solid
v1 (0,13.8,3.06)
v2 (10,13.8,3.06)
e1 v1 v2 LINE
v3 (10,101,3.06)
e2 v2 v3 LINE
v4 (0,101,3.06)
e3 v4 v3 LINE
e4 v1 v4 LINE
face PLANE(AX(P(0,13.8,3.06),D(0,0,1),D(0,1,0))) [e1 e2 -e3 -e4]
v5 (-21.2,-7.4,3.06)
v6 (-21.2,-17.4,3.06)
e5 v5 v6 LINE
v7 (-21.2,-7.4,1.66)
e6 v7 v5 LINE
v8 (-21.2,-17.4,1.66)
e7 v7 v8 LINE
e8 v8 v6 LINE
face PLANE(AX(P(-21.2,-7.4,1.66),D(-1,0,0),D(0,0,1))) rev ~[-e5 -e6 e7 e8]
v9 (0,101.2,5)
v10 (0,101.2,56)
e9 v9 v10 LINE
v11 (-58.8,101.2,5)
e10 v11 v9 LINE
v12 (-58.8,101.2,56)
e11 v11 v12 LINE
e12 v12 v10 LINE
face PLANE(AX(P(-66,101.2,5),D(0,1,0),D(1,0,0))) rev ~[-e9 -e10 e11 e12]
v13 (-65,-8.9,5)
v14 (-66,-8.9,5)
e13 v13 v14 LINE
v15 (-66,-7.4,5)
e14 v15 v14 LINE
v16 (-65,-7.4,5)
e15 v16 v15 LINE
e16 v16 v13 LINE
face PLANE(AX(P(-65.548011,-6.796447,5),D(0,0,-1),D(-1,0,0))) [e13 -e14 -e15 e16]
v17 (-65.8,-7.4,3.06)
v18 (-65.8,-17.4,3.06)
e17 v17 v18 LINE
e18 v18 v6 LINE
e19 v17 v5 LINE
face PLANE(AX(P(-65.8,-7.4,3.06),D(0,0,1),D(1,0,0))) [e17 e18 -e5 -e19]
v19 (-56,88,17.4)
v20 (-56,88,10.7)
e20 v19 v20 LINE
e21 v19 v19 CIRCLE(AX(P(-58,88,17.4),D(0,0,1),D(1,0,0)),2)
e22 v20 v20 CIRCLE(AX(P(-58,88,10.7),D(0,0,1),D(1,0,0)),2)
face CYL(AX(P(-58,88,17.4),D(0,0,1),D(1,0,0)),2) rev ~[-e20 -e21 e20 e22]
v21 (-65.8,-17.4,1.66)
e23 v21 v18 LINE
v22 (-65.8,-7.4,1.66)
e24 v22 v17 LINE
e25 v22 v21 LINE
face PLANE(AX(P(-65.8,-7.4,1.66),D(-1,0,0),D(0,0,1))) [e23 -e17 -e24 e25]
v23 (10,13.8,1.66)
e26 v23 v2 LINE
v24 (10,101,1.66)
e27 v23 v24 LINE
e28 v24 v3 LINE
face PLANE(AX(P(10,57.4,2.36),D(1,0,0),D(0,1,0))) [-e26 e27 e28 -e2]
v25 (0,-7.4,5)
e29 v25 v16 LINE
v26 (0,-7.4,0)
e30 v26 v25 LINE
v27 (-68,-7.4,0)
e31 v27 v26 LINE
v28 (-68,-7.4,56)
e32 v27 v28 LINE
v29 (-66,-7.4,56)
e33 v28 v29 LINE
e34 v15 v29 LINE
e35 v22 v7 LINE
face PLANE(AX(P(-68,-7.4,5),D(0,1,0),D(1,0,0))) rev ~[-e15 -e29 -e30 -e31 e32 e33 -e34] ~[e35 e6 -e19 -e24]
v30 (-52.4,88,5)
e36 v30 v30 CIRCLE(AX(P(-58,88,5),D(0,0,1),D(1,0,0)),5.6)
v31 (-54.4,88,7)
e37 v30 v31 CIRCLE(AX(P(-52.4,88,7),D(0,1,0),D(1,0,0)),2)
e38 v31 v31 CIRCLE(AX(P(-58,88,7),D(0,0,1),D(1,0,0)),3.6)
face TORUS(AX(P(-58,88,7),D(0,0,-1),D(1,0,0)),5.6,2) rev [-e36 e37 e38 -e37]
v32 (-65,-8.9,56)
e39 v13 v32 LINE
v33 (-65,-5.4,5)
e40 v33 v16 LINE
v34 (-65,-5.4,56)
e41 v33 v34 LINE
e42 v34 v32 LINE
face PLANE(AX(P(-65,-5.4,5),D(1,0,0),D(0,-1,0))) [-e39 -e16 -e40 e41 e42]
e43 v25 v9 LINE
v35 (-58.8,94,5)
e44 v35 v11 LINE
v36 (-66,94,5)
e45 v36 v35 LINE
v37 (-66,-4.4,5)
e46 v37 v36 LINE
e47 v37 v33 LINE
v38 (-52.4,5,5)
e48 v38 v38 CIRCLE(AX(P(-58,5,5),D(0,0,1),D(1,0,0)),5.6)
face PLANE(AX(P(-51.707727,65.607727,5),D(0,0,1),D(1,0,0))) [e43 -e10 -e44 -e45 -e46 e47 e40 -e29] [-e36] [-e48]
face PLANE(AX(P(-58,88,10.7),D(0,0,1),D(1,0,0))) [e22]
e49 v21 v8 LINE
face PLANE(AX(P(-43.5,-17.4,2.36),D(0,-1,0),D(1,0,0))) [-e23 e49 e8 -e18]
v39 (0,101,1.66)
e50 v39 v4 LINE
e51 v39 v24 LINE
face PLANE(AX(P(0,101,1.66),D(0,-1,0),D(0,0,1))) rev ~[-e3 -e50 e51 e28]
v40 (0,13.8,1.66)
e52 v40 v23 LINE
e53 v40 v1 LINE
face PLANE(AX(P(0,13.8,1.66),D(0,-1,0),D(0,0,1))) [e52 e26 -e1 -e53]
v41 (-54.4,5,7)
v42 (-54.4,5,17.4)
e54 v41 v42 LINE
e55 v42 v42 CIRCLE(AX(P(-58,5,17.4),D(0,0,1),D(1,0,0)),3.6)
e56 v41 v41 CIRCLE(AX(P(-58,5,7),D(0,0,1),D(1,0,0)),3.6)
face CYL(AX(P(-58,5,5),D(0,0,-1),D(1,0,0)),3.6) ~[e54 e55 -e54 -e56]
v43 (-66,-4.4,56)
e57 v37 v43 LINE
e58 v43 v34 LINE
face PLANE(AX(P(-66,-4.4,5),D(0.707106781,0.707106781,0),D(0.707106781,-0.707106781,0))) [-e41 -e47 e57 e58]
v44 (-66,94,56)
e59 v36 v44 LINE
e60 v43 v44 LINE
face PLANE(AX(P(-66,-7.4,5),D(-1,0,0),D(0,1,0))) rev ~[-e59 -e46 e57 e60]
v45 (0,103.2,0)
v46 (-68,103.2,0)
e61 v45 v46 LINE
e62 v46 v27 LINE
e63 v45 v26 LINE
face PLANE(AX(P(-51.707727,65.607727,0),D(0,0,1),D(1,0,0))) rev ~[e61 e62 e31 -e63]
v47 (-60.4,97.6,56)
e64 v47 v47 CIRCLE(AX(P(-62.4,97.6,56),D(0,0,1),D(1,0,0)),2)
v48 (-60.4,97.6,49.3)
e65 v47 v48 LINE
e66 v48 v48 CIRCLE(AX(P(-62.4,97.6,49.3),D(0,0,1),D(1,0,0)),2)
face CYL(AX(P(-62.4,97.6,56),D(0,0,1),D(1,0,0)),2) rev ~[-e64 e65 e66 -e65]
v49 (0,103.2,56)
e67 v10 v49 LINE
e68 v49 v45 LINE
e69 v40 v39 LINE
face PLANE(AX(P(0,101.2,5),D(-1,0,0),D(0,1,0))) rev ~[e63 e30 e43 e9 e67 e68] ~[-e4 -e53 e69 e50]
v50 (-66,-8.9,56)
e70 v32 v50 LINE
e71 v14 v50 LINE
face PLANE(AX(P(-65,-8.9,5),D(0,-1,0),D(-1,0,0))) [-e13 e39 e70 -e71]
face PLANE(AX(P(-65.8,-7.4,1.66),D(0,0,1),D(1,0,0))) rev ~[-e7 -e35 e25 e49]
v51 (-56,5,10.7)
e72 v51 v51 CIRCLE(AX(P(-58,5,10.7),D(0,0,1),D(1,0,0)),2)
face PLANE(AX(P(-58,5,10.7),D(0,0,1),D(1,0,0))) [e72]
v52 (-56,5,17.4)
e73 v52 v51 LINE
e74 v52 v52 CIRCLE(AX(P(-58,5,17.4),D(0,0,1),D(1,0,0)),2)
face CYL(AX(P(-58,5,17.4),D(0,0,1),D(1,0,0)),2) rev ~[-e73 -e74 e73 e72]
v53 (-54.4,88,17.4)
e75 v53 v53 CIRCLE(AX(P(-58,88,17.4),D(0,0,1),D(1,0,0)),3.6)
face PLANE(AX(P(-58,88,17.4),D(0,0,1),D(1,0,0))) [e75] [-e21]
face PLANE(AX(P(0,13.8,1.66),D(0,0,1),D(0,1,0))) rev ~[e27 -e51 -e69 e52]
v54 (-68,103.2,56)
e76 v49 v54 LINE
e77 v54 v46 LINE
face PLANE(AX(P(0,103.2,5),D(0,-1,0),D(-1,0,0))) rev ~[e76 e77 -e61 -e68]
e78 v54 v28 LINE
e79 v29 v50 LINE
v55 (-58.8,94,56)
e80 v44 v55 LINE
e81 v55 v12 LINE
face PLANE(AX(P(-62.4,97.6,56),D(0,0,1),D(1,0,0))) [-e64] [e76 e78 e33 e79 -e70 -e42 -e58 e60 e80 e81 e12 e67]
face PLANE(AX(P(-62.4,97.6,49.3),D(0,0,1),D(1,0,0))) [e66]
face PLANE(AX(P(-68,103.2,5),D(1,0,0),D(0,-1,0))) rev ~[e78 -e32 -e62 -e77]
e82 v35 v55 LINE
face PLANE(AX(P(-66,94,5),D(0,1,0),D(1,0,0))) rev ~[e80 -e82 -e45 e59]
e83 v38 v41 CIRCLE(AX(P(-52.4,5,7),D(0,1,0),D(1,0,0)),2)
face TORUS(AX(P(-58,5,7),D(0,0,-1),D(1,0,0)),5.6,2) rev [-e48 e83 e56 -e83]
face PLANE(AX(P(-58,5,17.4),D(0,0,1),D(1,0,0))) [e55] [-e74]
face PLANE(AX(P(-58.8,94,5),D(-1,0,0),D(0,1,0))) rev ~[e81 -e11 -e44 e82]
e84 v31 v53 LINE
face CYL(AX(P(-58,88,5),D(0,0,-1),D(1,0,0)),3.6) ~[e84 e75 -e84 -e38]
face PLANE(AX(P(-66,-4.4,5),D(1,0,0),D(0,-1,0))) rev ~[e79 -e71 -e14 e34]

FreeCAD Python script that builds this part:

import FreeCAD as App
import Part
import Sketcher

V = App.Vector
Q = App.Units.Quantity


def edges_at(feature, points):
    """Names of the edges that pass closest to the given points."""
    edges = feature.Shape.Edges
    near = lambda p: min(range(len(edges)), key=lambda i: edges[i].distToShape(Part.Vertex(*p))[0])
    return sorted({f"Edge{near(p) + 1}" for p in points})


def add_polygon(sketch, points):
    """Adds a closed chain of lines whose ends are joined by coincident constraints."""
    first, n = sketch.GeometryCount, len(points)
    for a, b in zip(points, points[1:] + points[:1]):
        sketch.addGeometry(Part.LineSegment(App.Vector(*a, 0), App.Vector(*b, 0)), False)
    for i in range(n):
        sketch.addConstraint(Sketcher.Constraint("Coincident", first + i, 2, first + (i + 1) % n, 1))

doc = App.newDocument("Part")
body = doc.addObject("PartDesign::Body", "Body")

# Sketch on XY plane
sketch1 = doc.addObject("Sketcher::SketchObject", "Sketch")
body.addObject(sketch1)
sketch1.AttachmentSupport = (doc.XY_Plane, [""])
sketch1.MapMode = "FlatFace"
add_polygon(sketch1, [(-63, 93), (-63, 0), (0, 0), (0, 93)])  # lines 0-3
sketch1.addConstraint(Sketcher.Constraint("Vertical", 0))
sketch1.addConstraint(Sketcher.Constraint("Horizontal", 1))
sketch1.addConstraint(Sketcher.Constraint("Vertical", 2))
sketch1.addConstraint(Sketcher.Constraint("Horizontal", 3))
sketch1.addConstraint(Sketcher.Constraint("Coincident", 1, 2, -1, 1))
sketch1.addConstraint(Sketcher.Constraint("DistanceX", 1, 1, 1, 2, Q("63 mm")))
sketch1.addConstraint(Sketcher.Constraint("DistanceY", 0, 2, 0, 1, Q("93 mm")))
pad1 = doc.addObject("PartDesign::Pad", "Pad")
body.addObject(pad1)
pad1.Profile = sketch1
pad1.Length = 5

# Sketch on XY plane
sketch2 = doc.addObject("Sketcher::SketchObject", "Sketch001")
body.addObject(sketch2)
sketch2.AttachmentSupport = (doc.XY_Plane, [""])
sketch2.MapMode = "FlatFace"
add_polygon(sketch2, [(-63, 0), (-63, -7), (0, -7), (0, 0)])  # lines 0-3
sketch2.addConstraint(Sketcher.Constraint("Vertical", 0))
sketch2.addConstraint(Sketcher.Constraint("Horizontal", 1))
sketch2.addConstraint(Sketcher.Constraint("Vertical", 2))
sketch2.addConstraint(Sketcher.Constraint("Horizontal", 3))
sketch2.addConstraint(Sketcher.Constraint("Coincident", 2, 2, -1, 1))
sketch2.addConstraint(Sketcher.Constraint("DistanceX", 1, 1, 1, 2, Q("63 mm")))
sketch2.addConstraint(Sketcher.Constraint("DistanceY", 0, 2, 0, 1, Q("7.4 mm")))
pad2 = doc.addObject("PartDesign::Pad", "Pad001")
body.addObject(pad2)
pad2.Profile = sketch2
pad2.Length = 5

# Sketch on XY plane
sketch3 = doc.addObject("Sketcher::SketchObject", "Sketch002")
body.addObject(sketch3)
sketch3.AttachmentSupport = (doc.XY_Plane, [""])
sketch3.MapMode = "FlatFace"
add_polygon(sketch3, [(-68, 103), (-68, -7), (-63, -7), (-63, 93), (0, 93), (0, 103)])  # lines 0-5
sketch3.addConstraint(Sketcher.Constraint("Vertical", 0))
sketch3.addConstraint(Sketcher.Constraint("Horizontal", 1))
sketch3.addConstraint(Sketcher.Constraint("Vertical", 2))
sketch3.addConstraint(Sketcher.Constraint("Horizontal", 3))
sketch3.addConstraint(Sketcher.Constraint("Vertical", 4))
sketch3.addConstraint(Sketcher.Constraint("Horizontal", 5))
sketch3.addConstraint(Sketcher.Constraint("PointOnObject", 3, 2, -2))
sketch3.addConstraint(Sketcher.Constraint("DistanceX", 1, 1, 1, 2, Q("5 mm")))
sketch3.addConstraint(Sketcher.Constraint("DistanceX", 3, 1, 3, 2, Q("63 mm")))
sketch3.addConstraint(Sketcher.Constraint("DistanceY", 0, 2, 0, 1, Q("110.6 mm")))
sketch3.addConstraint(Sketcher.Constraint("DistanceY", 2, 1, 2, 2, Q("100.4 mm")))
sketch3.addConstraint(Sketcher.Constraint("DistanceY", -1, 1, 2, 2, Q("93 mm")))
pad3 = doc.addObject("PartDesign::Pad", "Pad002")
body.addObject(pad3)
pad3.Profile = sketch3
pad3.Length = 5

# Sketch on XY plane
sketch4 = doc.addObject("Sketcher::SketchObject", "Sketch003")
body.addObject(sketch4)
sketch4.AttachmentSupport = (doc.XY_Plane, [""])
sketch4.MapMode = "FlatFace"
sketch4.AttachmentOffset = App.Placement(V(0, 0, 5), App.Rotation())
add_polygon(sketch4, [(-68, 103.2), (-68, -7.4), (-66, -7.4), (-66, 101.2), (0, 101.2), (0, 103.2)])  # lines 0-5
sketch4.addConstraint(Sketcher.Constraint("Vertical", 0))
sketch4.addConstraint(Sketcher.Constraint("Horizontal", 1))
sketch4.addConstraint(Sketcher.Constraint("Vertical", 2))
sketch4.addConstraint(Sketcher.Constraint("Horizontal", 3))
sketch4.addConstraint(Sketcher.Constraint("Vertical", 4))
sketch4.addConstraint(Sketcher.Constraint("Horizontal", 5))
sketch4.addConstraint(Sketcher.Constraint("PointOnObject", 3, 2, -2))
sketch4.addConstraint(Sketcher.Constraint("Equal", 1, 4))
sketch4.addConstraint(Sketcher.Constraint("DistanceX", 1, 1, 1, 2, Q("2 mm")))
sketch4.addConstraint(Sketcher.Constraint("DistanceX", 3, 1, 3, 2, Q("66 mm")))
sketch4.addConstraint(Sketcher.Constraint("DistanceY", 0, 2, 0, 1, Q("110.6 mm")))
sketch4.addConstraint(Sketcher.Constraint("DistanceY", 0, 2, -1, 1, Q("7.4 mm")))
pad4 = doc.addObject("PartDesign::Pad", "Pad003")
body.addObject(pad4)
pad4.Profile = sketch4
pad4.Length = 51

# Sketch on YZ plane
sketch5 = doc.addObject("Sketcher::SketchObject", "Sketch004")
body.addObject(sketch5)
sketch5.AttachmentSupport = (doc.YZ_Plane, [""])
sketch5.MapMode = "FlatFace"
add_polygon(sketch5, [(13.8, 3.1), (13.8, 1.7), (101, 1.7), (101, 3.1)])  # lines 0-3
sketch5.addConstraint(Sketcher.Constraint("Vertical", 0))
sketch5.addConstraint(Sketcher.Constraint("Horizontal", 1))
sketch5.addConstraint(Sketcher.Constraint("Vertical", 2))
sketch5.addConstraint(Sketcher.Constraint("Horizontal", 3))
sketch5.addConstraint(Sketcher.Constraint("DistanceX", 1, 1, 1, 2, Q("87.2 mm")))
sketch5.addConstraint(Sketcher.Constraint("DistanceY", 0, 2, 0, 1, Q("1.4 mm")))
sketch5.addConstraint(Sketcher.Constraint("DistanceX", -1, 1, 1, 2, Q("101 mm")))
sketch5.addConstraint(Sketcher.Constraint("DistanceY", -1, 1, 0, 2, Q("1.66 mm")))
pad5 = doc.addObject("PartDesign::Pad", "Pad004")
body.addObject(pad5)
pad5.Profile = sketch5
pad5.Length = 10

# Sketch on XY plane
sketch6 = doc.addObject("Sketcher::SketchObject", "Sketch005")
body.addObject(sketch6)
sketch6.AttachmentSupport = (doc.XY_Plane, [""])
sketch6.MapMode = "FlatFace"
sketch6.AttachmentOffset = App.Placement(V(0, 0, 5), App.Rotation())
sketch6.addGeometry(Part.Circle(V(-58, 5, 0), V(0, 0, 1), 3.6), False)
sketch6.addGeometry(Part.Circle(V(-58, 88, 0), V(0, 0, 1), 3.6), False)
sketch6.addConstraint(Sketcher.Constraint("Equal", 0, 1))
sketch6.addConstraint(Sketcher.Constraint("Vertical", 0, 3, 1, 3))
sketch6.addConstraint(Sketcher.Constraint("Diameter", 0, Q("7.2 mm")))
sketch6.addConstraint(Sketcher.Constraint("DistanceX", 0, 3, -1, 1, Q("58 mm")))
sketch6.addConstraint(Sketcher.Constraint("DistanceY", -1, 1, 0, 3, Q("5 mm")))
sketch6.addConstraint(Sketcher.Constraint("DistanceY", -1, 1, 1, 3, Q("88 mm")))
pad6 = doc.addObject("PartDesign::Pad", "Pad005")
body.addObject(pad6)
pad6.Profile = sketch6
pad6.Length = 12.4

# Sketch on XY plane
sketch7 = doc.addObject("Sketcher::SketchObject", "Sketch006")
body.addObject(sketch7)
sketch7.AttachmentSupport = (doc.XY_Plane, [""])
sketch7.MapMode = "FlatFace"
sketch7.AttachmentOffset = App.Placement(V(0, 0, 17.4), App.Rotation())
sketch7.addGeometry(Part.Circle(V(-58, 5, 0), V(0, 0, 1), 2), False)
sketch7.addGeometry(Part.Circle(V(-58, 88, 0), V(0, 0, 1), 2), False)
sketch7.addConstraint(Sketcher.Constraint("Equal", 0, 1))
sketch7.addConstraint(Sketcher.Constraint("Vertical", 0, 3, 1, 3))
sketch7.addConstraint(Sketcher.Constraint("Diameter", 0, Q("4 mm")))
sketch7.addConstraint(Sketcher.Constraint("DistanceX", 0, 3, -1, 1, Q("58 mm")))
sketch7.addConstraint(Sketcher.Constraint("DistanceY", -1, 1, 0, 3, Q("5 mm")))
sketch7.addConstraint(Sketcher.Constraint("DistanceY", -1, 1, 1, 3, Q("88 mm")))
pocket1 = doc.addObject("PartDesign::Pocket", "Pocket")
body.addObject(pocket1)
pocket1.Profile = sketch7
pocket1.Length = 6.7

# Sketch on XZ plane
sketch8 = doc.addObject("Sketcher::SketchObject", "Sketch007")
body.addObject(sketch8)
sketch8.AttachmentSupport = (doc.XZ_Plane, [""])
sketch8.MapMode = "FlatFace"
sketch8.AttachmentOffset = App.Placement(V(0, 0, 7.4), App.Rotation())
add_polygon(sketch8, [(-65.8, 3.1), (-65.8, 1.7), (-21.2, 1.7), (-21.2, 3.1)])  # lines 0-3
sketch8.addConstraint(Sketcher.Constraint("Vertical", 0))
sketch8.addConstraint(Sketcher.Constraint("Horizontal", 1))
sketch8.addConstraint(Sketcher.Constraint("Vertical", 2))
sketch8.addConstraint(Sketcher.Constraint("Horizontal", 3))
sketch8.addConstraint(Sketcher.Constraint("DistanceX", 1, 1, 1, 2, Q("44.6 mm")))
sketch8.addConstraint(Sketcher.Constraint("DistanceY", 0, 2, 0, 1, Q("1.4 mm")))
sketch8.addConstraint(Sketcher.Constraint("DistanceX", 0, 2, -1, 1, Q("65.8 mm")))
sketch8.addConstraint(Sketcher.Constraint("DistanceY", -1, 1, 0, 2, Q("1.66 mm")))
pad7 = doc.addObject("PartDesign::Pad", "Pad006")
body.addObject(pad7)
pad7.Profile = sketch8
pad7.Length = 10

# Sketch on XY plane
sketch9 = doc.addObject("Sketcher::SketchObject", "Sketch008")
body.addObject(sketch9)
sketch9.AttachmentSupport = (doc.XY_Plane, [""])
sketch9.MapMode = "FlatFace"
sketch9.AttachmentOffset = App.Placement(V(0, 0, 5), App.Rotation())
add_polygon(sketch9, [(-65, -8.9), (-65, -5.4), (-66, -4.4), (-66, -8.9)])  # lines 0-3
sketch9.addConstraint(Sketcher.Constraint("Vertical", 0))
sketch9.addConstraint(Sketcher.Constraint("Vertical", 2))
sketch9.addConstraint(Sketcher.Constraint("Horizontal", 3))
sketch9.addConstraint(Sketcher.Constraint("DistanceX", 3, 1, 3, 2, Q("1 mm")))
sketch9.addConstraint(Sketcher.Constraint("Angle", 1, Q("135 deg")))
sketch9.addConstraint(Sketcher.Constraint("DistanceY", 0, 1, 0, 2, Q("3.5 mm")))
sketch9.addConstraint(Sketcher.Constraint("DistanceX", 0, 2, -1, 1, Q("65 mm")))
sketch9.addConstraint(Sketcher.Constraint("DistanceY", 0, 2, -1, 1, Q("5.4 mm")))
pad8 = doc.addObject("PartDesign::Pad", "Pad007")
body.addObject(pad8)
pad8.Profile = sketch9
pad8.Length = 51

# Sketch on XY plane
sketch10 = doc.addObject("Sketcher::SketchObject", "Sketch009")
body.addObject(sketch10)
sketch10.AttachmentSupport = (doc.XY_Plane, [""])
sketch10.MapMode = "FlatFace"
sketch10.AttachmentOffset = App.Placement(V(0, 0, 5), App.Rotation())
add_polygon(sketch10, [(-66, 101), (-66, 94), (-59, 94), (-59, 101)])  # lines 0-3
sketch10.addConstraint(Sketcher.Constraint("Vertical", 0))
sketch10.addConstraint(Sketcher.Constraint("Horizontal", 1))
sketch10.addConstraint(Sketcher.Constraint("Vertical", 2))
sketch10.addConstraint(Sketcher.Constraint("Horizontal", 3))
sketch10.addConstraint(Sketcher.Constraint("Equal", 3, 0))
sketch10.addConstraint(Sketcher.Constraint("DistanceX", 1, 1, 1, 2, Q("7.2 mm")))
sketch10.addConstraint(Sketcher.Constraint("DistanceX", 0, 2, -1, 1, Q("66 mm")))
sketch10.addConstraint(Sketcher.Constraint("DistanceY", -1, 1, 0, 2, Q("94 mm")))
pad9 = doc.addObject("PartDesign::Pad", "Pad008")
body.addObject(pad9)
pad9.Profile = sketch10
pad9.Length = 51

# Sketch on XY plane
sketch11 = doc.addObject("Sketcher::SketchObject", "Sketch010")
body.addObject(sketch11)
sketch11.AttachmentSupport = (doc.XY_Plane, [""])
sketch11.MapMode = "FlatFace"
sketch11.AttachmentOffset = App.Placement(V(0, 0, 56), App.Rotation())
sketch11.addGeometry(Part.Circle(V(-62.4, 97.6, 0), V(0, 0, 1), 2), False)
sketch11.addConstraint(Sketcher.Constraint("Diameter", 0, Q("4 mm")))
sketch11.addConstraint(Sketcher.Constraint("DistanceX", 0, 3, -1, 1, Q("62.4 mm")))
sketch11.addConstraint(Sketcher.Constraint("DistanceY", -1, 1, 0, 3, Q("97.6 mm")))
pocket2 = doc.addObject("PartDesign::Pocket", "Pocket001")
body.addObject(pocket2)
pocket2.Profile = sketch11
pocket2.Length = 6.7
doc.recompute()

fillet = doc.addObject("PartDesign::Fillet", "Fillet")
body.addObject(fillet)
fillet.Base = (pocket2, edges_at(pocket2, [(-61.6, 5, 5), (-61.6, 88, 5)]))
fillet.Radius = 2

doc.recompute()
